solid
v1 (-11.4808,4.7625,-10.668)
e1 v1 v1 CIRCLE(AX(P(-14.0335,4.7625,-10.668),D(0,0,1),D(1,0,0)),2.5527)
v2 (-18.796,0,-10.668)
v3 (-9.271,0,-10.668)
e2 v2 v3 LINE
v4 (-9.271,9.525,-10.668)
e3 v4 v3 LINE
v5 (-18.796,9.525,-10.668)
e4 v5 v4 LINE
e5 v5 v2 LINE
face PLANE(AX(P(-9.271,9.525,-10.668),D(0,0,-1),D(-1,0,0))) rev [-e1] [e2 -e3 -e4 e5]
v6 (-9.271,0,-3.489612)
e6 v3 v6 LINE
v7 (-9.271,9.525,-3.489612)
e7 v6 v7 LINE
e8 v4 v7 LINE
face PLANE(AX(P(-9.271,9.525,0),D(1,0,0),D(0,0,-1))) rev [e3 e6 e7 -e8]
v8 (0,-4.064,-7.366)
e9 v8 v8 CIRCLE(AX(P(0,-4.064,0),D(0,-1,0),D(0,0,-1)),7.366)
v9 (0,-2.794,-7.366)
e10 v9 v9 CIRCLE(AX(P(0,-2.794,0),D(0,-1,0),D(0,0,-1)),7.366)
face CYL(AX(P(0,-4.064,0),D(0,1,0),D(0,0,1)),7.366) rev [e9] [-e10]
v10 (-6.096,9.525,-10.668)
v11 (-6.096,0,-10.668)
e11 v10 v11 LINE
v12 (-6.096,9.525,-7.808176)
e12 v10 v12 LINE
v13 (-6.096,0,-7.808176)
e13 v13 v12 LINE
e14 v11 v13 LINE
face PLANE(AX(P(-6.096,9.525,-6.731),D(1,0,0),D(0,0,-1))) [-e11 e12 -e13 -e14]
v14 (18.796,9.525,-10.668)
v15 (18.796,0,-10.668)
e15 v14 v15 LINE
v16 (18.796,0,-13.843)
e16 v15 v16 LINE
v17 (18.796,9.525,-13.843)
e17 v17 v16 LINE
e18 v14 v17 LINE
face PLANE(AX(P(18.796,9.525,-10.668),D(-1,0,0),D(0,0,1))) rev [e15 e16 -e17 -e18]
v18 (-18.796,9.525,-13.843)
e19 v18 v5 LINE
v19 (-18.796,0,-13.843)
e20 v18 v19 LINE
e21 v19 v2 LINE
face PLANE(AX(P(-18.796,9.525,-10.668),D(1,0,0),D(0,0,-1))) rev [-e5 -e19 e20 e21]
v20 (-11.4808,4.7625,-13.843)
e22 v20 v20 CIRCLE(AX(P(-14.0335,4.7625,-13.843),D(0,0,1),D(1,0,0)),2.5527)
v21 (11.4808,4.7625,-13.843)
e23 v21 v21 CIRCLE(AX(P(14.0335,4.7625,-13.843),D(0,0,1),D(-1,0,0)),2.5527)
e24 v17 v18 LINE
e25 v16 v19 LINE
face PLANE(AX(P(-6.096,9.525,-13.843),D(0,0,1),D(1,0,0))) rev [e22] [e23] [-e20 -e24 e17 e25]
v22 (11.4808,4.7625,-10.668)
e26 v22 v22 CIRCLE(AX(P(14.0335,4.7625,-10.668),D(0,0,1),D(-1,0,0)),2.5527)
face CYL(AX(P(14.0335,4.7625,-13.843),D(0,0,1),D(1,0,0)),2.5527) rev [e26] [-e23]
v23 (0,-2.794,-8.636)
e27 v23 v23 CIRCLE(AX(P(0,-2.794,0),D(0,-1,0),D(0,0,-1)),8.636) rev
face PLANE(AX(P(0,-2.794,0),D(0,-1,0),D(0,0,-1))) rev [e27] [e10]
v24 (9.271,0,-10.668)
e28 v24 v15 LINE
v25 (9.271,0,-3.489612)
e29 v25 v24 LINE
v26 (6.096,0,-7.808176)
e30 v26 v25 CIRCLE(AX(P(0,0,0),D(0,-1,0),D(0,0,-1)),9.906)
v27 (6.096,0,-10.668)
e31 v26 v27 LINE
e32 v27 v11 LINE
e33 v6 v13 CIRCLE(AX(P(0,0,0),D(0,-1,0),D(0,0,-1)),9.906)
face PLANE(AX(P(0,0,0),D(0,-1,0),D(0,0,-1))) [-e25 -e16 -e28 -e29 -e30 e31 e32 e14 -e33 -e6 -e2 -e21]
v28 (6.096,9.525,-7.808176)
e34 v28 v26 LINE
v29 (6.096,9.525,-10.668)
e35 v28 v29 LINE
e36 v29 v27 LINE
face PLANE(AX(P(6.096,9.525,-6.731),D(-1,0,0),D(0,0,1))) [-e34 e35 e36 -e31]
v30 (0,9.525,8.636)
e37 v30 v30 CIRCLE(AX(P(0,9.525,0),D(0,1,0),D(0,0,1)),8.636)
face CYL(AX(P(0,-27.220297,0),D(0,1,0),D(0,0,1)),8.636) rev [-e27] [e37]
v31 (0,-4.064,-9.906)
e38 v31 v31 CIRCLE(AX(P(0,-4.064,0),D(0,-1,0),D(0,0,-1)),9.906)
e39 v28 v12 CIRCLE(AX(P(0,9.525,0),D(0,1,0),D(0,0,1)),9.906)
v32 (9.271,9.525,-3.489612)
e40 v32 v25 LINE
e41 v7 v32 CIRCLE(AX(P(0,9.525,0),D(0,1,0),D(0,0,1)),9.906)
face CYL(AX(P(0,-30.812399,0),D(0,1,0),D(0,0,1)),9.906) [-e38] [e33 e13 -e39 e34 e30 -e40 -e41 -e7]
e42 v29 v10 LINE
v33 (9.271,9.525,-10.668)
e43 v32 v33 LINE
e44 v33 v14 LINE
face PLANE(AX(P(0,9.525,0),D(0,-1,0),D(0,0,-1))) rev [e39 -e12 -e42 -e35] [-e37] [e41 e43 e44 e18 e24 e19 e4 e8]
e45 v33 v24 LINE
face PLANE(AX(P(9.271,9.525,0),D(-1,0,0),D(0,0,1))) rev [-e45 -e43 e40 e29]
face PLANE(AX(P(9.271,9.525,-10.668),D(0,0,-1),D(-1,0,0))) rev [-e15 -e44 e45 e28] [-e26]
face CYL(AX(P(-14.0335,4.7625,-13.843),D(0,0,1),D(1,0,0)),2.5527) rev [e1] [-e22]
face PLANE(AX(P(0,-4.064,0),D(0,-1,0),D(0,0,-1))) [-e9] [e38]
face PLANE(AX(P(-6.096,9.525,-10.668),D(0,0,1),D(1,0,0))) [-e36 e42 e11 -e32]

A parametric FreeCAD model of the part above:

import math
import FreeCAD as App
import Part
import Sketcher
from FreeCAD import Vector
Q = App.Units.Quantity

doc = App.newDocument("Part")
body = doc.addObject("PartDesign::Body", "Body")

# Sketch on XZ plane
sketch1 = body.newObject("Sketcher::SketchObject", "Sketch")
sketch1.AttachmentSupport = (doc.getObject("XZ_Plane"), [""])
sketch1.MapMode = "FlatFace"
sketch1.addGeometry([
    Part.LineSegment(Vector(-9.3, -10.7, 0), Vector(-9.3, 0, 0)),  # 0
    Part.ArcOfCircle(Part.Circle(Vector(0, 0, 0), Vector(0, 0, 1), 9.3), math.radians(0), math.radians(180)),  # 1
    Part.LineSegment(Vector(9.3, 0, 0), Vector(9.3, -10.7, 0)),  # 2
    Part.LineSegment(Vector(9.3, -10.7, 0), Vector(18.8, -10.7, 0)),  # 3
    Part.LineSegment(Vector(18.8, -10.7, 0), Vector(18.8, -13.8, 0)),  # 4
    Part.LineSegment(Vector(18.8, -13.8, 0), Vector(-18.8, -13.8, 0)),  # 5
    Part.LineSegment(Vector(-18.8, -13.8, 0), Vector(-18.8, -10.7, 0)),  # 6
    Part.LineSegment(Vector(-18.8, -10.7, 0), Vector(-9.3, -10.7, 0)),  # 7
    Part.Circle(Vector(0, 0, 0), Vector(0, 0, 1), 6.1),  # 8
    Part.LineSegment(Vector(-6.1, -6.7, 0), Vector(-6.1, -10.7, 0)),  # 9
    Part.LineSegment(Vector(-6.1, -10.7, 0), Vector(6.1, -10.7, 0)),  # 10
    Part.LineSegment(Vector(6.1, -10.7, 0), Vector(6.1, -6.7, 0)),  # 11
    Part.ArcOfCircle(Part.Circle(Vector(0, 0, 0), Vector(0, 0, 1), 9.1), math.radians(-132), math.radians(-48)),  # 12
], False)
sketch1.addConstraint([
    Sketcher.Constraint("Tangent", 0, 2, 1, 2),
    Sketcher.Constraint("Tangent", 1, 1, 2, 1),
    Sketcher.Constraint("Coincident", 2, 2, 3, 1),
    Sketcher.Constraint("Coincident", 3, 2, 4, 1),
    Sketcher.Constraint("Coincident", 4, 2, 5, 1),
    Sketcher.Constraint("Coincident", 5, 2, 6, 1),
    Sketcher.Constraint("Coincident", 6, 2, 7, 1),
    Sketcher.Constraint("Coincident", 7, 2, 0, 1),
    Sketcher.Constraint("Coincident", 9, 2, 10, 1),
    Sketcher.Constraint("Coincident", 10, 2, 11, 1),
    Sketcher.Constraint("Coincident", 11, 2, 12, 2),
    Sketcher.Constraint("Coincident", 12, 1, 9, 1),
    Sketcher.Constraint("Vertical", 0),
    Sketcher.Constraint("Vertical", 2),
    Sketcher.Constraint("Horizontal", 3),
    Sketcher.Constraint("Vertical", 4),
    Sketcher.Constraint("Horizontal", 5),
    Sketcher.Constraint("Vertical", 6),
    Sketcher.Constraint("Horizontal", 7),
    Sketcher.Constraint("Vertical", 9),
    Sketcher.Constraint("Horizontal", 10),
    Sketcher.Constraint("Vertical", 11),
    Sketcher.Constraint("Coincident", 1, 3, -1, 1),
    Sketcher.Constraint("Coincident", 8, 3, -1, 1),
    Sketcher.Constraint("Coincident", 12, 3, -1, 1),
    Sketcher.Constraint("Symmetric", 3, 2, 6, 2, -2),
    Sketcher.Constraint("Horizontal", 7, 2, 9, 2),
    Sketcher.Constraint("Horizontal", 11, 2, 12, 1),
    Sketcher.Constraint("Diameter", 8, Q("0.48 in")),
    Sketcher.Constraint("Radius", 1, Q("0.365 in")),
    Sketcher.Constraint("DistanceX", 5, 2, 5, 1, Q("1.48 in")),
    Sketcher.Constraint("DistanceX", 10, 1, 10, 2, Q("0.48 in")),
    Sketcher.Constraint("DistanceY", 0, 1, 0, 2, Q("0.42 in")),
    Sketcher.Constraint("DistanceY", 4, 2, 4, 1, Q("0.125 in")),
    Sketcher.Constraint("DistanceY", 9, 2, 9, 1, Q("0.155 in")),
])
pad1 = body.newObject("PartDesign::Pad", "Pad")
pad1.Profile = sketch1
pad1.Length = Q("0.375 in")
pad1.Reversed = True

# Sketch on XY plane
sketch2 = body.newObject("Sketcher::SketchObject", "Sketch001")
sketch2.AttachmentSupport = (doc.getObject("XY_Plane"), [""])
sketch2.MapMode = "FlatFace"
sketch2.AttachmentOffset = App.Placement(Vector(0, 0, -0.42 * 25.4), App.Rotation())
sketch2.addGeometry([
    Part.Circle(Vector(-14, 4.8, 0), Vector(0, 0, 1), 2.6),
    Part.Circle(Vector(14, 4.8, 0), Vector(0, 0, 1), 2.6),
], False)
sketch2.addConstraint([
    Sketcher.Constraint("Equal", 0, 1),
    Sketcher.Constraint("Symmetric", 0, 3, 1, 3, -2),
    Sketcher.Constraint("Diameter", 0, Q("0.201 in")),
    Sketcher.Constraint("DistanceY", -1, 1, 0, 3, Q("0.1875 in")),
    Sketcher.Constraint("DistanceX", 0, 3, 1, 3, Q("1.105 in")),
])
pocket1 = body.newObject("PartDesign::Pocket", "Pocket")
pocket1.Profile = sketch2
pocket1.Type = "ThroughAll"

# Sketch on XZ plane
sketch3 = body.newObject("Sketcher::SketchObject", "Sketch002")
sketch3.AttachmentSupport = (doc.getObject("XZ_Plane"), [""])
sketch3.MapMode = "FlatFace"
sketch3.addGeometry([
    Part.Circle(Vector(0, 0, 0), Vector(0, 0, 1), 9),
    Part.Circle(Vector(0, 0, 0), Vector(0, 0, 1), 6),
], False)
sketch3.addConstraint([
    Sketcher.Constraint("Coincident", 0, 3, -1, 1),
    Sketcher.Constraint("Coincident", 1, 3, -1, 1),
    Sketcher.Constraint("Diameter", 0, Q("0.73 in")),
    Sketcher.Constraint("Diameter", 1, Q("0.48 in")),
])
pad2 = body.newObject("PartDesign::Pad", "Pad001")
pad2.Profile = sketch3
pad2.Length = Q("0.11 in")

# Sketch on XZ plane
sketch4 = body.newObject("Sketcher::SketchObject", "Sketch003")
sketch4.AttachmentSupport = (doc.getObject("XZ_Plane"), [""])
sketch4.MapMode = "FlatFace"
sketch4.AttachmentOffset = App.Placement(Vector(0, 0, -0.375 * 25.4), App.Rotation())
sketch4.addGeometry([
    Part.Circle(Vector(0, 0, 0), Vector(0, 0, 1), 10),
    Part.Circle(Vector(0, 0, 0), Vector(0, 0, 1), 9),
], False)
sketch4.addConstraint([
    Sketcher.Constraint("Coincident", 0, 3, -1, 1),
    Sketcher.Constraint("Coincident", 1, 3, -1, 1),
    Sketcher.Constraint("Diameter", 0, Q("0.78 in")),
    Sketcher.Constraint("Diameter", 1, Q("0.68 in")),
])
pad3 = body.newObject("PartDesign::Pad", "Pad002")
pad3.Profile = sketch4
pad3.Length = Q("0.485 in")

# Sketch on XZ plane
sketch5 = body.newObject("Sketcher::SketchObject", "Sketch004")
sketch5.AttachmentSupport = (doc.getObject("XZ_Plane"), [""])
sketch5.MapMode = "FlatFace"
sketch5.AttachmentOffset = App.Placement(Vector(0, 0, -0.375 * 25.4), App.Rotation())
sketch5.addGeometry(Part.Circle(Vector(0, 0, 0), Vector(0, 0, 1), 9), False)
sketch5.addConstraint([
    Sketcher.Constraint("Coincident", 0, 3, -1, 1),
    Sketcher.Constraint("Diameter", 0, Q("0.68 in")),
])
pocket2 = body.newObject("PartDesign::Pocket", "Pocket001")
pocket2.Profile = sketch5
pocket2.Length = Q("0.485 in")
pocket2.Reversed = True

# Sketch on XZ plane
sketch6 = body.newObject("Sketcher::SketchObject", "Sketch005")
sketch6.AttachmentSupport = (doc.getObject("XZ_Plane"), [""])
sketch6.MapMode = "FlatFace"
sketch6.AttachmentOffset = App.Placement(Vector(0, 0, 0.11 * 25.4), App.Rotation())
sketch6.addGeometry([
    Part.Circle(Vector(0, 0, 0), Vector(0, 0, 1), 10),
    Part.Circle(Vector(0, 0, 0), Vector(0, 0, 1), 7),
], False)
sketch6.addConstraint([
    Sketcher.Constraint("Coincident", 0, 3, -1, 1),
    Sketcher.Constraint("Coincident", 1, 3, -1, 1),
    Sketcher.Constraint("Diameter", 0, Q("0.78 in")),
    Sketcher.Constraint("Diameter", 1, Q("0.58 in")),
])
pad4 = body.newObject("PartDesign::Pad", "Pad003")
pad4.Profile = sketch6
pad4.Length = Q("0.05 in")

doc.recompute()
